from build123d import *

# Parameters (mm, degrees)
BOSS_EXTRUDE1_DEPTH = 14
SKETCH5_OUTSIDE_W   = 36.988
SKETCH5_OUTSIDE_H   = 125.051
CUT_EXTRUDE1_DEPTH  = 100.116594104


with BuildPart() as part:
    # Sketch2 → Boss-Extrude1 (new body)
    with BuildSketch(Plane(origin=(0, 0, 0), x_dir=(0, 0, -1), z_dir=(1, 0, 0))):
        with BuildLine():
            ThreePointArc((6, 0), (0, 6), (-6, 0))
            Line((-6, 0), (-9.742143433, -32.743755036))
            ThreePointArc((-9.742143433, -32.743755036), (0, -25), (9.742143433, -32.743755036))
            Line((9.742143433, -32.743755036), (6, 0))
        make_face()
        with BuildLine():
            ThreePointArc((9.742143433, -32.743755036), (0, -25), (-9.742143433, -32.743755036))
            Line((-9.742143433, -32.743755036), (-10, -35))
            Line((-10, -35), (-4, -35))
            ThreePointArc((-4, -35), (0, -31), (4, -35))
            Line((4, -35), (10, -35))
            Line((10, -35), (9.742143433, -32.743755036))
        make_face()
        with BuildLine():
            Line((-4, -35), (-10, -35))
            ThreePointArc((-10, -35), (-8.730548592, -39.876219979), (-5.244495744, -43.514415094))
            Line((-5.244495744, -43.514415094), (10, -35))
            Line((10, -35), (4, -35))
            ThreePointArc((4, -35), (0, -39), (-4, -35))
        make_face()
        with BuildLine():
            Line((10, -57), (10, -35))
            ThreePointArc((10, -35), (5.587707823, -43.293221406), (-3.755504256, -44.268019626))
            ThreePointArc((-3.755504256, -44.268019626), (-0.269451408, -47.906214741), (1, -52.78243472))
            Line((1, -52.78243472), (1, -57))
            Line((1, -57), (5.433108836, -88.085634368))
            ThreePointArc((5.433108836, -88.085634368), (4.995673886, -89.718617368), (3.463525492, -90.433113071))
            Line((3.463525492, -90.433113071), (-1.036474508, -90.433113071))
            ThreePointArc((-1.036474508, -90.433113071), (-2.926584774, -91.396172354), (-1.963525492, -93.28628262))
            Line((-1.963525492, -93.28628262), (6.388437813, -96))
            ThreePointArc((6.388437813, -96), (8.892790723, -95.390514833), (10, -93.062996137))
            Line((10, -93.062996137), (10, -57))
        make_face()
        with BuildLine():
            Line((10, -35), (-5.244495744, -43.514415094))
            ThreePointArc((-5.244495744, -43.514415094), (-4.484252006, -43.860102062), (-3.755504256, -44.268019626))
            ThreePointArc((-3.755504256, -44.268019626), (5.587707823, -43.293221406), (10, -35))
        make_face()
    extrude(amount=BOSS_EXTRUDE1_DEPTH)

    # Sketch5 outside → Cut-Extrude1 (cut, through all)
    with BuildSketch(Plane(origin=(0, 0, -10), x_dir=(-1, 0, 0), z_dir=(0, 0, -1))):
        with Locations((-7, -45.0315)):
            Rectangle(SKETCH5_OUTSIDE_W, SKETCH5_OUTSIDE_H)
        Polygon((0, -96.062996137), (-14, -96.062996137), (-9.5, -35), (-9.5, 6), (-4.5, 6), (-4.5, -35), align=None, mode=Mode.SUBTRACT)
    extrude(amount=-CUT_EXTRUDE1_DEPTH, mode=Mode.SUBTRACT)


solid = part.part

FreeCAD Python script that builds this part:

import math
import FreeCAD as App
import Part
import Sketcher
from FreeCAD import Vector
Q = App.Units.Quantity

doc = App.newDocument("Part")
body = doc.addObject("PartDesign::Body", "Body")

# Sketch on YZ plane
sketch1 = body.newObject("Sketcher::SketchObject", "Sketch")
sketch1.AttachmentSupport = (doc.getObject("YZ_Plane"), [""])
sketch1.MapMode = "FlatFace"
sketch1.addGeometry([
    Part.ArcOfCircle(Part.Circle(Vector(0, 0, 0), Vector(0, 0, 1), 6), math.radians(-90), math.radians(90)),  # 0
    Part.LineSegment(Vector(0, 6, 0), Vector(-32.743755, 9.742143, 0)),  # 1
    Part.LineSegment(Vector(-32.743755, 9.742143, 0), Vector(-35, 10, 0)),  # 2
    Part.ArcOfCircle(Part.Circle(Vector(-35, 0, 0), Vector(0, 0, 1), 10), math.radians(90), math.radians(148.368804)),  # 3
    Part.ArcOfCircle(Part.Circle(Vector(-52.782435, 9, 0), Vector(0, 0, 1), 10), math.radians(-31.631196), math.radians(-22.058337)),  # 4
    Part.ArcOfCircle(Part.Circle(Vector(-52.782435, 9, 0), Vector(0, 0, 1), 10), math.radians(-90), math.radians(-31.631196)),  # 5
    Part.LineSegment(Vector(-52.782435, -1, 0), Vector(-57, -1, 0)),  # 6
    Part.LineSegment(Vector(-57, -1, 0), Vector(-88.085634, -5.433109, 0)),  # 7
    Part.ArcOfCircle(Part.Circle(Vector(-88.433113, -3.463525, 0), Vector(0, 0, 1), 2), math.radians(180), math.radians(280.005305)),  # 8
    Part.LineSegment(Vector(-90.433113, -3.463525, 0), Vector(-90.433113, 1.036475, 0)),  # 9
    Part.ArcOfCircle(Part.Circle(Vector(-91.859698, 1.5, 0), Vector(0, 0, 1), 1.5), math.radians(-18), math.radians(162)),  # 10
    Part.LineSegment(Vector(-93.286283, 1.963525, 0), Vector(-96, -6.388438, 0)),  # 11
    Part.ArcOfCircle(Part.Circle(Vector(-93.062996, -7, 0), Vector(0, 0, 1), 3), math.radians(168.237575), math.radians(270)),  # 12
    Part.LineSegment(Vector(-93.062996, -10, 0), Vector(-35, -10, 0)),  # 13
    Part.LineSegment(Vector(-35, -10, 0), Vector(-32.743755, -9.742143, 0)),  # 14
    Part.LineSegment(Vector(-32.743755, -9.742143, 0), Vector(0, -6, 0)),  # 15
    Part.Circle(Vector(-35, 0, 0), Vector(0, 0, 1), 4),  # 16
], False)
sketch1.addConstraint([
    Sketcher.Constraint("Coincident", 0, 2, 1, 1),
    Sketcher.Constraint("Coincident", 1, 2, 2, 1),
    Sketcher.Constraint("Coincident", 2, 2, 3, 1),
    Sketcher.Constraint("Coincident", 3, 2, 4, 2),
    Sketcher.Constraint("Tangent", 4, 1, 5, 2),
    Sketcher.Constraint("Tangent", 5, 1, 6, 1),
    Sketcher.Constraint("Coincident", 6, 2, 7, 1),
    Sketcher.Constraint("Coincident", 7, 2, 8, 2),
    Sketcher.Constraint("Tangent", 8, 1, 9, 1),
    Sketcher.Constraint("Coincident", 9, 2, 10, 1),
    Sketcher.Constraint("Tangent", 10, 2, 11, 1),
    Sketcher.Constraint("Coincident", 11, 2, 12, 1),
    Sketcher.Constraint("Tangent", 12, 2, 13, 1),
    Sketcher.Constraint("Coincident", 13, 2, 14, 1),
    Sketcher.Constraint("Coincident", 14, 2, 15, 1),
    Sketcher.Constraint("Coincident", 15, 2, 0, 1),
    Sketcher.Constraint("Horizontal", 6),
    Sketcher.Constraint("Vertical", 9),
    Sketcher.Constraint("Horizontal", 13),
    Sketcher.Constraint("Coincident", 0, 3, -1, 1),
    Sketcher.Constraint("Coincident", 16, 3, 3, 3),
    Sketcher.Constraint("Equal", 3, 4),
    Sketcher.Constraint("Equal", 4, 5),
    Sketcher.Constraint("Symmetric", 2, 2, 13, 2, -1),
    Sketcher.Constraint("Symmetric", 1, 2, 14, 2, -1),
    Sketcher.Constraint("PointOnObject", 3, 3, -1),
    Sketcher.Constraint("PointOnObject", 0, 2, -2),
    Sketcher.Constraint("PointOnObject", 15, 2, -2),
    Sketcher.Constraint("Parallel", 1, 2),
    Sketcher.Constraint("Vertical", 16, 3, 2, 2),
    Sketcher.Constraint("Diameter", 16, Q("8 mm")),
    Sketcher.Constraint("Radius", 0, Q("6 mm")),
    Sketcher.Constraint("Radius", 3, Q("10 mm")),
    Sketcher.Constraint("Radius", 8, Q("2 mm")),
    Sketcher.Constraint("Radius", 12, Q("3 mm")),
    Sketcher.Constraint("Radius", 10, Q("1.5 mm")),
    Sketcher.Constraint("Angle", 11, Q("-108 deg")),
    Sketcher.Constraint("DistanceY", 9, 1, 9, 2, Q("4.5 mm")),
    Sketcher.Constraint("DistanceX", 3, 3, -1, 1, Q("35 mm")),
    Sketcher.Constraint("DistanceY", -1, 1, 4, 3, Q("9 mm")),
    Sketcher.Constraint("DistanceX", 6, 2, -1, 1, Q("57 mm")),
    Sketcher.Constraint("DistanceX", 11, 2, -1, 1, Q("96 mm")),
    Sketcher.Constraint("DistanceY", -1, 1, 10, 3, Q("1.5 mm")),
    Sketcher.Constraint("Distance", 1, Q("32.956898 mm")),
    Sketcher.Constraint("DistanceX", 12, 3, 10, 3, Q("1.203298 mm")),
    Sketcher.Constraint("DistanceX", 7, 2, 5, 1, Q("35.3032 mm")),
    Sketcher.Constraint("DistanceX", 6, 2, 6, 1, Q("4.217565 mm")),
    Sketcher.Constraint("DistanceX", 4, 1, -1, 1, Q("44.26802 mm")),
    Sketcher.Constraint("DistanceY", 7, 2, -1, 1, Q("5.433109 mm")),
])
pad1 = body.newObject("PartDesign::Pad", "Pad")
pad1.Profile = sketch1
pad1.Length = 14

# Sketch on XY plane
sketch2 = body.newObject("Sketcher::SketchObject", "Sketch001")
sketch2.AttachmentSupport = (doc.getObject("XY_Plane"), [""])
sketch2.MapMode = "FlatFace"
sketch2.AttachmentOffset = App.Placement(Vector(0, 0, -10), App.Rotation())
sketch2.addGeometry([
    Part.LineSegment(Vector(25.494, 17.494, 0), Vector(25.494, -107.557, 0)),  # 0
    Part.LineSegment(Vector(25.494, -107.557, 0), Vector(-11.494, -107.557, 0)),  # 1
    Part.LineSegment(Vector(-11.494, -107.557, 0), Vector(-11.494, 17.494, 0)),  # 2
    Part.LineSegment(Vector(-11.494, 17.494, 0), Vector(25.494, 17.494, 0)),  # 3
    Part.LineSegment(Vector(4.5, -35, 0), Vector(0, -96.062996, 0)),  # 4
    Part.LineSegment(Vector(0, -96.062996, 0), Vector(14, -96.062996, 0)),  # 5
    Part.LineSegment(Vector(14, -96.062996, 0), Vector(9.5, -35, 0)),  # 6
    Part.LineSegment(Vector(9.5, -35, 0), Vector(9.5, 6, 0)),  # 7
    Part.LineSegment(Vector(9.5, 6, 0), Vector(4.5, 6, 0)),  # 8
    Part.LineSegment(Vector(4.5, 6, 0), Vector(4.5, -35, 0)),  # 9
], False)
sketch2.addConstraint([
    Sketcher.Constraint("Coincident", 0, 2, 1, 1),
    Sketcher.Constraint("Coincident", 1, 2, 2, 1),
    Sketcher.Constraint("Coincident", 2, 2, 3, 1),
    Sketcher.Constraint("Coincident", 3, 2, 0, 1),
    Sketcher.Constraint("Coincident", 4, 2, 5, 1),
    Sketcher.Constraint("Coincident", 5, 2, 6, 1),
    Sketcher.Constraint("Coincident", 6, 2, 7, 1),
    Sketcher.Constraint("Coincident", 7, 2, 8, 1),
    Sketcher.Constraint("Coincident", 8, 2, 9, 1),
    Sketcher.Constraint("Coincident", 9, 2, 4, 1),
    Sketcher.Constraint("Vertical", 0),
    Sketcher.Constraint("Horizontal", 1),
    Sketcher.Constraint("Vertical", 2),
    Sketcher.Constraint("Horizontal", 3),
    Sketcher.Constraint("Horizontal", 5),
    Sketcher.Constraint("Vertical", 7),
    Sketcher.Constraint("Horizontal", 8),
    Sketcher.Constraint("Vertical", 9),
    Sketcher.Constraint("PointOnObject", 4, 2, -2),
    Sketcher.Constraint("Horizontal", 6, 2, 9, 2),
    Sketcher.Constraint("Equal", 4, 6),
    Sketcher.Constraint("DistanceX", 5, 1, 5, 2, Q("14 mm")),
    Sketcher.Constraint("DistanceX", 8, 2, 8, 1, Q("5 mm")),
    Sketcher.Constraint("DistanceY", 7, 1, 7, 2, Q("41 mm")),
    Sketcher.Constraint("DistanceY", 6, 2, -1, 1, Q("35 mm")),
    Sketcher.Constraint("DistanceX", 1, 2, 1, 1, Q("36.988 mm")),
    Sketcher.Constraint("DistanceY", 0, 2, 0, 1, Q("125.051 mm")),
    Sketcher.Constraint("DistanceX", -1, 1, 0, 2, Q("25.494 mm")),
    Sketcher.Constraint("DistanceY", 0, 2, -1, 1, Q("107.557 mm")),
    Sketcher.Constraint("Distance", 4, Q("61.228584 mm")),
])
pocket1 = body.newObject("PartDesign::Pocket", "Pocket")
pocket1.Profile = sketch2
pocket1.Type = "ThroughAll"
pocket1.Reversed = True

doc.recompute()
